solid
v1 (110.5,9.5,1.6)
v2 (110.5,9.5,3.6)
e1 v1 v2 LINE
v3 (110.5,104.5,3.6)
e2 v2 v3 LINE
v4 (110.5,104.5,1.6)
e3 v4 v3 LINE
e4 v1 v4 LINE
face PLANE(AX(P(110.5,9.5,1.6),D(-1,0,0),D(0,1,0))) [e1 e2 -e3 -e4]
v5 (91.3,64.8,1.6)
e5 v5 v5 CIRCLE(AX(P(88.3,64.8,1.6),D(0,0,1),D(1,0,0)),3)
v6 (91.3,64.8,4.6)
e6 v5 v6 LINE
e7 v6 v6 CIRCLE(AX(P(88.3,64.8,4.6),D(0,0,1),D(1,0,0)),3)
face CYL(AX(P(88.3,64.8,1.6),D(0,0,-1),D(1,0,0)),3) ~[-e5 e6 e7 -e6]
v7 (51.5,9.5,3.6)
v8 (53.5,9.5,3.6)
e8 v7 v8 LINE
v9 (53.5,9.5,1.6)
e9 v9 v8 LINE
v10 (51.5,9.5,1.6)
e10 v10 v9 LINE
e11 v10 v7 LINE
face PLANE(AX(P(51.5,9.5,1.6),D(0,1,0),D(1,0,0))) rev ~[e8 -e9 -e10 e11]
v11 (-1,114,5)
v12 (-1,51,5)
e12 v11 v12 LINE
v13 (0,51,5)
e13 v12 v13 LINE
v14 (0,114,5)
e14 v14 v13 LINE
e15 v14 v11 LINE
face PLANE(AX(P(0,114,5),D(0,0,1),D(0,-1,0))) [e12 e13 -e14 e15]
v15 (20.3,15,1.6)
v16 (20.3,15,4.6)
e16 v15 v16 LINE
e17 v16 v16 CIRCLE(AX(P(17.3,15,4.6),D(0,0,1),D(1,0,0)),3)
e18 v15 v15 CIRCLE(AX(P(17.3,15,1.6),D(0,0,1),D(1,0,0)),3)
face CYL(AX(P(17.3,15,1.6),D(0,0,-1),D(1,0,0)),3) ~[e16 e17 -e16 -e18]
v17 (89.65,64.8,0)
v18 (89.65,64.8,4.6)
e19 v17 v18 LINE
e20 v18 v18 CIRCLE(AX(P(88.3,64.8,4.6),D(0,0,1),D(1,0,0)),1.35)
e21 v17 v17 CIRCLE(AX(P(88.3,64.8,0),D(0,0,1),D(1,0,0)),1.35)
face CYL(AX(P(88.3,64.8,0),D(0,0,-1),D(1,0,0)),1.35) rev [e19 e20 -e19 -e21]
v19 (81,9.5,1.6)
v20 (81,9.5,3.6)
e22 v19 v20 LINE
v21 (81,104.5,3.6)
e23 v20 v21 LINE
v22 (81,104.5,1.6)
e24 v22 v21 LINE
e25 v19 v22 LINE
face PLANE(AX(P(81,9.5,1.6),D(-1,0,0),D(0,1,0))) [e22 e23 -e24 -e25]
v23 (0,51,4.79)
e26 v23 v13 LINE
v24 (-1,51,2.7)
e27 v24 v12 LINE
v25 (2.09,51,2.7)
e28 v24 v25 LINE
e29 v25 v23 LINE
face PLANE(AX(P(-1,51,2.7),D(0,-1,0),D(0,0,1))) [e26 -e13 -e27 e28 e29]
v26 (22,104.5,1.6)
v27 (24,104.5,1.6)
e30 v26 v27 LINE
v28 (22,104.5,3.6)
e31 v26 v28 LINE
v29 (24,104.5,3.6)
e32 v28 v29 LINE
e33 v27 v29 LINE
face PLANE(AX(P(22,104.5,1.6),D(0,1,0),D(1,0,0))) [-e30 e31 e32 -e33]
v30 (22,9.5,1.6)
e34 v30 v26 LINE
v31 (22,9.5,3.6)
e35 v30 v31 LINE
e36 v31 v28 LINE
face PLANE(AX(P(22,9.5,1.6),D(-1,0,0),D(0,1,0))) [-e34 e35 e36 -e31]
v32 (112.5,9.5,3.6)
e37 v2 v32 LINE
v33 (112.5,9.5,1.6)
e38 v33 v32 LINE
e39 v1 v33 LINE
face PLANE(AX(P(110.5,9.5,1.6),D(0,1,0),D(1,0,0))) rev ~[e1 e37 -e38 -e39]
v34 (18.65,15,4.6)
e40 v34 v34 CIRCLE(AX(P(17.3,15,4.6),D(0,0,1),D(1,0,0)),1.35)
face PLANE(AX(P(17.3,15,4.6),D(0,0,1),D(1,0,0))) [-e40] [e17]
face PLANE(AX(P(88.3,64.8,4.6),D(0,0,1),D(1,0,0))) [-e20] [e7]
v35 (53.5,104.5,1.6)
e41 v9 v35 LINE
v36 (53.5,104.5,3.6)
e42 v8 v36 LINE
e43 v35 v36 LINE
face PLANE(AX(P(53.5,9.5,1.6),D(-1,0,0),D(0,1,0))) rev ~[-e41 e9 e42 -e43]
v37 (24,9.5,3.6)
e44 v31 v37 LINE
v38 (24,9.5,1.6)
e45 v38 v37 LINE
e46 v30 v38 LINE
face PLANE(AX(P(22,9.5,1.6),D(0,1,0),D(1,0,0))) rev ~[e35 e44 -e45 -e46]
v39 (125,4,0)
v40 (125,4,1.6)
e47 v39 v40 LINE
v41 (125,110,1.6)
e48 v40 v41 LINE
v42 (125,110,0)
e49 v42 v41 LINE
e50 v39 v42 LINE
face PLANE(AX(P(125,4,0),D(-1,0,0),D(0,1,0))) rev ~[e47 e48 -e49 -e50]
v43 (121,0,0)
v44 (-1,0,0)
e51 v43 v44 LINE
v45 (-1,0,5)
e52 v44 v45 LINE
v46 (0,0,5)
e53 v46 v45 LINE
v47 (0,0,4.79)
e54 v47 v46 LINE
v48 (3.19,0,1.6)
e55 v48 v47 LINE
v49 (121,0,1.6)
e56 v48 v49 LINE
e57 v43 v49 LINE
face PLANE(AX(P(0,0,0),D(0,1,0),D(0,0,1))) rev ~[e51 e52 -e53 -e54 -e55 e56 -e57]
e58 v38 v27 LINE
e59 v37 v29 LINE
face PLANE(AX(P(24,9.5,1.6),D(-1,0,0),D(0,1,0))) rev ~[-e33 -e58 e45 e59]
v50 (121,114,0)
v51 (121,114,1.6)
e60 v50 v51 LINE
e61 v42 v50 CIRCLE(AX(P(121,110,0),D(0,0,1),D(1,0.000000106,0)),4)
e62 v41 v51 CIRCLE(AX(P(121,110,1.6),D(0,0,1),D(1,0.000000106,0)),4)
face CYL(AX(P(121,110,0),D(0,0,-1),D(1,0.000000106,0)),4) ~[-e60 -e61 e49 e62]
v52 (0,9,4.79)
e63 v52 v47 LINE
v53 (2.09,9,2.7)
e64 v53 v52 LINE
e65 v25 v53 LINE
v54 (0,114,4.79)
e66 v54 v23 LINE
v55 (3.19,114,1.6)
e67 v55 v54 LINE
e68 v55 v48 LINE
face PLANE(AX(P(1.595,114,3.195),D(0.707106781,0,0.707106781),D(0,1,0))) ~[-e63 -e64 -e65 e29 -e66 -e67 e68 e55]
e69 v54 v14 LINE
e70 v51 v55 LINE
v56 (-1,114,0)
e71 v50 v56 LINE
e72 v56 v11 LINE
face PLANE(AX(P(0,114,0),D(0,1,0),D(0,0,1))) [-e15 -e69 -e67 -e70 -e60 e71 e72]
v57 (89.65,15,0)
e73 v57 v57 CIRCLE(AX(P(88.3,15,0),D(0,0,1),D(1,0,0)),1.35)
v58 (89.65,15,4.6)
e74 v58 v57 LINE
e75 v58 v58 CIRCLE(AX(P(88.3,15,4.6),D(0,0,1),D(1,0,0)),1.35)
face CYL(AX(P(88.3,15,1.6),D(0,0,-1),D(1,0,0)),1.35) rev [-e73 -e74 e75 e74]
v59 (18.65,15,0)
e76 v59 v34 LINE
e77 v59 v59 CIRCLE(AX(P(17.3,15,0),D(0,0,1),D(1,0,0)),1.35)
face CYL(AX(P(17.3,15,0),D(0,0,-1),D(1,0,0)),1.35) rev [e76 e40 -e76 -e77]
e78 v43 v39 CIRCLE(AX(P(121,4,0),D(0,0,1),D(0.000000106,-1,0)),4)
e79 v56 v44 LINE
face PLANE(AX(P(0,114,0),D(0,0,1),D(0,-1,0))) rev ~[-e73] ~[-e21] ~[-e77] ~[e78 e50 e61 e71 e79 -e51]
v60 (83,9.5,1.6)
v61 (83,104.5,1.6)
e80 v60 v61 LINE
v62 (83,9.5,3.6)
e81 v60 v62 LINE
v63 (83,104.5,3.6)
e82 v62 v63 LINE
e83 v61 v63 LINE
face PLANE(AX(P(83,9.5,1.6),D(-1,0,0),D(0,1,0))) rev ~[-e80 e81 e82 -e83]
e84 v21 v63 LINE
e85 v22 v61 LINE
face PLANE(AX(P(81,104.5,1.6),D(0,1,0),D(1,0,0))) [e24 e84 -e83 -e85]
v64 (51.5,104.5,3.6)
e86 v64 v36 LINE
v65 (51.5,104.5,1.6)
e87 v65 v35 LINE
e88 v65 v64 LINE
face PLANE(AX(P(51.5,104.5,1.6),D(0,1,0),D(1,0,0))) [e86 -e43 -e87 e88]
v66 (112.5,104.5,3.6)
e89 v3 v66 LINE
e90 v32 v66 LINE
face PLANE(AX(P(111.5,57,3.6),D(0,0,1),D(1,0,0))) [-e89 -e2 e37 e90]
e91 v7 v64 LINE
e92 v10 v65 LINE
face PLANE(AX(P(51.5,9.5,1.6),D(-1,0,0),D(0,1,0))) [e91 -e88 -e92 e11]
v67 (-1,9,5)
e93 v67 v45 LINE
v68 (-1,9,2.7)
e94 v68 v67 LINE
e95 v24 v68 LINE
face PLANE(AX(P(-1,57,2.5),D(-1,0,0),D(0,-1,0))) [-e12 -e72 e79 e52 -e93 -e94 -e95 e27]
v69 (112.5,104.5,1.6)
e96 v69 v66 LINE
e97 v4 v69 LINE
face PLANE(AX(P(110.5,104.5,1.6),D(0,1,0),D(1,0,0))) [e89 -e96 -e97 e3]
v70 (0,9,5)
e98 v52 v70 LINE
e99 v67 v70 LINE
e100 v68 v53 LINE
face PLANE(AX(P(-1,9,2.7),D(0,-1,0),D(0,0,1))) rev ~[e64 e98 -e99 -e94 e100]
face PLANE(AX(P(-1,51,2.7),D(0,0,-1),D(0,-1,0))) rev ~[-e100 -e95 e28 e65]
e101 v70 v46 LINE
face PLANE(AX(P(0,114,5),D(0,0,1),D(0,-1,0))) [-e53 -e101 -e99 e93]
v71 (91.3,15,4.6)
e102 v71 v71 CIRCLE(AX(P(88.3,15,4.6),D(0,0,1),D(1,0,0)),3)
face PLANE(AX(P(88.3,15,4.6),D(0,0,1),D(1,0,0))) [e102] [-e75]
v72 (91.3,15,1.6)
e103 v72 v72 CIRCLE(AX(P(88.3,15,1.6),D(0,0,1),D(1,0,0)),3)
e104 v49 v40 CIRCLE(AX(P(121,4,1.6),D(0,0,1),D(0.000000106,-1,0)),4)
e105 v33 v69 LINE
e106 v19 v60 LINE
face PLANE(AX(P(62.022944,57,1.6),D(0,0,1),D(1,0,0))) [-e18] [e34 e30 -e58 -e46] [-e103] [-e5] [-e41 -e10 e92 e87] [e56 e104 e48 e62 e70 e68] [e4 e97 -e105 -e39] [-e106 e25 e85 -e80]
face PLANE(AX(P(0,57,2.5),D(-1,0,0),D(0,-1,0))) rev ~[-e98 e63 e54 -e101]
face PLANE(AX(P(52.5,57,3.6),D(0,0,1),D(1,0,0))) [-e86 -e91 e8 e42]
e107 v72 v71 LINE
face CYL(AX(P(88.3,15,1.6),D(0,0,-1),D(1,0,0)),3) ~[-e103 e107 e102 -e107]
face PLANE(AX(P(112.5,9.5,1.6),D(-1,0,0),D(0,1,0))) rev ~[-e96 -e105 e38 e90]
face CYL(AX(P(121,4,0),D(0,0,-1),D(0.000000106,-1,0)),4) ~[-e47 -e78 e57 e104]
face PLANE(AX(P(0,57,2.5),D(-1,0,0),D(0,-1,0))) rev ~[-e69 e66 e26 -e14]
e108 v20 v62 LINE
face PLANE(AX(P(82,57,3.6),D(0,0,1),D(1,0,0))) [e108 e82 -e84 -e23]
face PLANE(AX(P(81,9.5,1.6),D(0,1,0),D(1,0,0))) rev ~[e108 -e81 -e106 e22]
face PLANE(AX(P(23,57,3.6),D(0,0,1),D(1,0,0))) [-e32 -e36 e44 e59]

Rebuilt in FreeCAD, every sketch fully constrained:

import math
import FreeCAD as App
import Part
import Sketcher

V = App.Vector


def edges_at(feature, points):
    """Names of the edges that pass closest to the given points."""
    edges = feature.Shape.Edges
    near = lambda p: min(range(len(edges)), key=lambda i: edges[i].distToShape(Part.Vertex(*p))[0])
    return sorted({f"Edge{near(p) + 1}" for p in points})

doc = App.newDocument("Part")
body = doc.addObject("PartDesign::Body", "Body")

# Sketch on XY plane
sketch1 = body.newObject("Sketcher::SketchObject", "Sketch")
sketch1.AttachmentSupport = (doc.getObject("XY_Plane"), [""])
sketch1.MapMode = "FlatFace"
sketch1.addGeometry([
    Part.LineSegment(V(0, 0, 0), V(121, 0, 0)),  # 0
    Part.ArcOfCircle(Part.Circle(V(121, 4, 0), V(0, 0, 1), 4), math.radians(-90), math.radians(0)),  # 1
    Part.LineSegment(V(125, 4, 0), V(125, 110, 0)),  # 2
    Part.ArcOfCircle(Part.Circle(V(121, 110, 0), V(0, 0, 1), 4), math.radians(0), math.radians(90)),  # 3
    Part.LineSegment(V(121, 114, 0), V(0, 114, 0)),  # 4
    Part.LineSegment(V(0, 114, 0), V(0, 0, 0)),  # 5
    Part.Circle(V(17.3, 15, 0), V(0, 0, 1), 1.4),  # 6
    Part.Circle(V(88.3, 15, 0), V(0, 0, 1), 1.4),  # 7
    Part.Circle(V(88.3, 64.8, 0), V(0, 0, 1), 1.4),  # 8
], False)
sketch1.addConstraint([
    Sketcher.Constraint("Tangent", 0, 2, 1, 1),
    Sketcher.Constraint("Tangent", 1, 2, 2, 1),
    Sketcher.Constraint("Tangent", 2, 2, 3, 1),
    Sketcher.Constraint("Tangent", 3, 2, 4, 1),
    Sketcher.Constraint("Coincident", 4, 2, 5, 1),
    Sketcher.Constraint("Coincident", 5, 2, 0, 1),
    Sketcher.Constraint("Horizontal", 0),
    Sketcher.Constraint("Vertical", 2),
    Sketcher.Constraint("Horizontal", 4),
    Sketcher.Constraint("Vertical", 5),
    Sketcher.Constraint("Coincident", 5, 2, -1, 1),
    Sketcher.Constraint("Equal", 1, 3),
    Sketcher.Constraint("Equal", 6, 7),
    Sketcher.Constraint("Equal", 7, 8),
    Sketcher.Constraint("Horizontal", 6, 3, 7, 3),
    Sketcher.Constraint("Vertical", 7, 3, 8, 3),
    Sketcher.Constraint("Radius", 1, 4.0),
    Sketcher.Constraint("Diameter", 6, 2.7),
    Sketcher.Constraint("DistanceX", 0, 1, 0, 2, 121.0),
    Sketcher.Constraint("DistanceY", 2, 1, 2, 2, 106.0),
    Sketcher.Constraint("DistanceY", -1, 1, 6, 3, 15.0),
    Sketcher.Constraint("DistanceX", 6, 3, 7, 3, 71.0),
    Sketcher.Constraint("DistanceX", -1, 1, 6, 3, 17.3),
    Sketcher.Constraint("DistanceY", -1, 1, 8, 3, 64.8),
])
pad1 = body.newObject("PartDesign::Pad", "Pad")
pad1.Profile = sketch1
pad1.Length = 1.6

# Sketch on XY plane
sketch2 = body.newObject("Sketcher::SketchObject", "Sketch001")
sketch2.AttachmentSupport = (doc.getObject("XY_Plane"), [""])
sketch2.MapMode = "FlatFace"
sketch2.AttachmentOffset = App.Placement(V(0, 0, 1.6), App.Rotation())
sketch2.addGeometry([
    Part.Circle(V(88.3, 15, 0), V(0, 0, 1), 3),  # 0
    Part.Circle(V(88.3, 15, 0), V(0, 0, 1), 1.4),  # 1
    Part.Circle(V(88.3, 64.8, 0), V(0, 0, 1), 3),  # 2
    Part.Circle(V(88.3, 64.8, 0), V(0, 0, 1), 1.4),  # 3
    Part.Circle(V(17.3, 15, 0), V(0, 0, 1), 3),  # 4
    Part.Circle(V(17.3, 15, 0), V(0, 0, 1), 1.4),  # 5
], False)
sketch2.addConstraint([
    Sketcher.Constraint("Coincident", 1, 3, 0, 3),
    Sketcher.Constraint("Coincident", 3, 3, 2, 3),
    Sketcher.Constraint("Coincident", 5, 3, 4, 3),
    Sketcher.Constraint("Equal", 0, 2),
    Sketcher.Constraint("Equal", 1, 3),
    Sketcher.Constraint("Equal", 2, 4),
    Sketcher.Constraint("Equal", 3, 5),
    Sketcher.Constraint("Horizontal", 1, 3, 4, 3),
    Sketcher.Constraint("Vertical", 1, 3, 2, 3),
    Sketcher.Constraint("Diameter", 0, 6.0),
    Sketcher.Constraint("Diameter", 1, 2.7),
    Sketcher.Constraint("DistanceY", -1, 1, 0, 3, 15.0),
    Sketcher.Constraint("DistanceX", 4, 3, 0, 3, 71.0),
    Sketcher.Constraint("DistanceX", -1, 1, 0, 3, 88.3),
    Sketcher.Constraint("DistanceY", -1, 1, 2, 3, 64.8),
])
pad2 = body.newObject("PartDesign::Pad", "Pad001")
pad2.Profile = sketch2
pad2.Length = 3

# Sketch on XY plane
sketch3 = body.newObject("Sketcher::SketchObject", "Sketch002")
sketch3.AttachmentSupport = (doc.getObject("XY_Plane"), [""])
sketch3.MapMode = "FlatFace"
sketch3.AttachmentOffset = App.Placement(V(0, 0, 1.6), App.Rotation())
sketch3.addGeometry([
    Part.LineSegment(V(22, 104.5, 0), V(22, 9.5, 0)),  # 0
    Part.LineSegment(V(22, 9.5, 0), V(24, 9.5, 0)),  # 1
    Part.LineSegment(V(24, 9.5, 0), V(24, 104.5, 0)),  # 2
    Part.LineSegment(V(24, 104.5, 0), V(22, 104.5, 0)),  # 3
    Part.LineSegment(V(51.5, 104.5, 0), V(51.5, 9.5, 0)),  # 4
    Part.LineSegment(V(51.5, 9.5, 0), V(53.5, 9.5, 0)),  # 5
    Part.LineSegment(V(53.5, 9.5, 0), V(53.5, 104.5, 0)),  # 6
    Part.LineSegment(V(53.5, 104.5, 0), V(51.5, 104.5, 0)),  # 7
    Part.LineSegment(V(81, 104.5, 0), V(81, 9.5, 0)),  # 8
    Part.LineSegment(V(81, 9.5, 0), V(83, 9.5, 0)),  # 9
    Part.LineSegment(V(83, 9.5, 0), V(83, 104.5, 0)),  # 10
    Part.LineSegment(V(83, 104.5, 0), V(81, 104.5, 0)),  # 11
    Part.LineSegment(V(110.5, 104.5, 0), V(110.5, 9.5, 0)),  # 12
    Part.LineSegment(V(110.5, 9.5, 0), V(112.5, 9.5, 0)),  # 13
    Part.LineSegment(V(112.5, 9.5, 0), V(112.5, 104.5, 0)),  # 14
    Part.LineSegment(V(112.5, 104.5, 0), V(110.5, 104.5, 0)),  # 15
], False)
sketch3.addConstraint([
    Sketcher.Constraint("Coincident", 0, 2, 1, 1),
    Sketcher.Constraint("Coincident", 1, 2, 2, 1),
    Sketcher.Constraint("Coincident", 2, 2, 3, 1),
    Sketcher.Constraint("Coincident", 3, 2, 0, 1),
    Sketcher.Constraint("Coincident", 4, 2, 5, 1),
    Sketcher.Constraint("Coincident", 5, 2, 6, 1),
    Sketcher.Constraint("Coincident", 6, 2, 7, 1),
    Sketcher.Constraint("Coincident", 7, 2, 4, 1),
    Sketcher.Constraint("Coincident", 8, 2, 9, 1),
    Sketcher.Constraint("Coincident", 9, 2, 10, 1),
    Sketcher.Constraint("Coincident", 10, 2, 11, 1),
    Sketcher.Constraint("Coincident", 11, 2, 8, 1),
    Sketcher.Constraint("Coincident", 12, 2, 13, 1),
    Sketcher.Constraint("Coincident", 13, 2, 14, 1),
    Sketcher.Constraint("Coincident", 14, 2, 15, 1),
    Sketcher.Constraint("Coincident", 15, 2, 12, 1),
    Sketcher.Constraint("Vertical", 0),
    Sketcher.Constraint("Horizontal", 1),
    Sketcher.Constraint("Vertical", 2),
    Sketcher.Constraint("Horizontal", 3),
    Sketcher.Constraint("Vertical", 4),
    Sketcher.Constraint("Horizontal", 5),
    Sketcher.Constraint("Vertical", 6),
    Sketcher.Constraint("Horizontal", 7),
    Sketcher.Constraint("Vertical", 8),
    Sketcher.Constraint("Horizontal", 9),
    Sketcher.Constraint("Vertical", 10),
    Sketcher.Constraint("Horizontal", 11),
    Sketcher.Constraint("Vertical", 12),
    Sketcher.Constraint("Horizontal", 13),
    Sketcher.Constraint("Vertical", 14),
    Sketcher.Constraint("Horizontal", 15),
    Sketcher.Constraint("Horizontal", 1, 2, 4, 2),
    Sketcher.Constraint("Horizontal", 3, 2, 6, 2),
    Sketcher.Constraint("Horizontal", 5, 2, 8, 2),
    Sketcher.Constraint("Horizontal", 7, 2, 10, 2),
    Sketcher.Constraint("Horizontal", 9, 2, 12, 2),
    Sketcher.Constraint("Horizontal", 11, 2, 14, 2),
    Sketcher.Constraint("Equal", 3, 5),
    Sketcher.Constraint("Equal", 7, 9),
    Sketcher.Constraint("Equal", 11, 13),
    Sketcher.Constraint("DistanceX", 1, 1, 1, 2, 2.0),
    Sketcher.Constraint("DistanceY", 0, 2, 0, 1, 95.0),
    Sketcher.Constraint("DistanceX", -1, 1, 0, 2, 22.0),
    Sketcher.Constraint("DistanceX", -1, 1, 8, 2, 81.0),
    Sketcher.Constraint("DistanceX", 5, 2, 12, 2, 57.0),
    Sketcher.Constraint("DistanceY", -1, 1, 0, 2, 9.5),
    Sketcher.Constraint("DistanceX", -1, 1, 4, 2, 51.5),
])
pad3 = body.newObject("PartDesign::Pad", "Pad002")
pad3.Profile = sketch3
pad3.Length = 2

# Sketch on YZ plane
sketch4 = body.newObject("Sketcher::SketchObject", "Sketch003")
sketch4.AttachmentSupport = (doc.getObject("YZ_Plane"), [""])
sketch4.MapMode = "FlatFace"
sketch4.addGeometry([
    Part.LineSegment(V(114, 5, 0), V(114, 0, 0)),
    Part.LineSegment(V(114, 0, 0), V(0, 0, 0)),
    Part.LineSegment(V(0, 0, 0), V(0, 5, 0)),
    Part.LineSegment(V(0, 5, 0), V(114, 5, 0)),
], False)
sketch4.addConstraint([
    Sketcher.Constraint("Coincident", 0, 2, 1, 1),
    Sketcher.Constraint("Coincident", 1, 2, 2, 1),
    Sketcher.Constraint("Coincident", 2, 2, 3, 1),
    Sketcher.Constraint("Coincident", 3, 2, 0, 1),
    Sketcher.Constraint("Vertical", 0),
    Sketcher.Constraint("Horizontal", 1),
    Sketcher.Constraint("Vertical", 2),
    Sketcher.Constraint("Horizontal", 3),
    Sketcher.Constraint("Coincident", 1, 2, -1, 1),
    Sketcher.Constraint("DistanceX", 1, 2, 1, 1, 114.0),
    Sketcher.Constraint("DistanceY", 0, 2, 0, 1, 5.0),
])
pad4 = body.newObject("PartDesign::Pad", "Pad003")
pad4.Profile = sketch4
pad4.Length = 1
pad4.Reversed = True
doc.recompute()

chamfer = body.newObject("PartDesign::Chamfer", "Chamfer")
chamfer.Base = (pad4, edges_at(pad4, [(0, 57, 1.6)]))
chamfer.Size = 3.19

# Sketch on YZ plane
sketch5 = body.newObject("Sketcher::SketchObject", "Sketch004")
sketch5.AttachmentSupport = (doc.getObject("YZ_Plane"), [""])
sketch5.MapMode = "FlatFace"
sketch5.AttachmentOffset = App.Placement(V(0, 0, -1), App.Rotation())
sketch5.addGeometry([
    Part.LineSegment(V(51, 5, 0), V(51, 2.7, 0)),
    Part.LineSegment(V(51, 2.7, 0), V(9, 2.7, 0)),
    Part.LineSegment(V(9, 2.7, 0), V(9, 5, 0)),
    Part.LineSegment(V(9, 5, 0), V(51, 5, 0)),
], False)
sketch5.addConstraint([
    Sketcher.Constraint("Coincident", 0, 2, 1, 1),
    Sketcher.Constraint("Coincident", 1, 2, 2, 1),
    Sketcher.Constraint("Coincident", 2, 2, 3, 1),
    Sketcher.Constraint("Coincident", 3, 2, 0, 1),
    Sketcher.Constraint("Vertical", 0),
    Sketcher.Constraint("Horizontal", 1),
    Sketcher.Constraint("Vertical", 2),
    Sketcher.Constraint("Horizontal", 3),
    Sketcher.Constraint("DistanceX", 1, 2, 1, 1, 42.0),
    Sketcher.Constraint("DistanceY", 0, 2, 0, 1, 2.3),
    Sketcher.Constraint("DistanceX", -1, 1, 0, 2, 51.0),
    Sketcher.Constraint("DistanceY", -1, 1, 2, 2, 5.0),
])
pocket1 = body.newObject("PartDesign::Pocket", "Pocket")
pocket1.Profile = sketch5
pocket1.Length = 5
pocket1.Reversed = True

doc.recompute()
